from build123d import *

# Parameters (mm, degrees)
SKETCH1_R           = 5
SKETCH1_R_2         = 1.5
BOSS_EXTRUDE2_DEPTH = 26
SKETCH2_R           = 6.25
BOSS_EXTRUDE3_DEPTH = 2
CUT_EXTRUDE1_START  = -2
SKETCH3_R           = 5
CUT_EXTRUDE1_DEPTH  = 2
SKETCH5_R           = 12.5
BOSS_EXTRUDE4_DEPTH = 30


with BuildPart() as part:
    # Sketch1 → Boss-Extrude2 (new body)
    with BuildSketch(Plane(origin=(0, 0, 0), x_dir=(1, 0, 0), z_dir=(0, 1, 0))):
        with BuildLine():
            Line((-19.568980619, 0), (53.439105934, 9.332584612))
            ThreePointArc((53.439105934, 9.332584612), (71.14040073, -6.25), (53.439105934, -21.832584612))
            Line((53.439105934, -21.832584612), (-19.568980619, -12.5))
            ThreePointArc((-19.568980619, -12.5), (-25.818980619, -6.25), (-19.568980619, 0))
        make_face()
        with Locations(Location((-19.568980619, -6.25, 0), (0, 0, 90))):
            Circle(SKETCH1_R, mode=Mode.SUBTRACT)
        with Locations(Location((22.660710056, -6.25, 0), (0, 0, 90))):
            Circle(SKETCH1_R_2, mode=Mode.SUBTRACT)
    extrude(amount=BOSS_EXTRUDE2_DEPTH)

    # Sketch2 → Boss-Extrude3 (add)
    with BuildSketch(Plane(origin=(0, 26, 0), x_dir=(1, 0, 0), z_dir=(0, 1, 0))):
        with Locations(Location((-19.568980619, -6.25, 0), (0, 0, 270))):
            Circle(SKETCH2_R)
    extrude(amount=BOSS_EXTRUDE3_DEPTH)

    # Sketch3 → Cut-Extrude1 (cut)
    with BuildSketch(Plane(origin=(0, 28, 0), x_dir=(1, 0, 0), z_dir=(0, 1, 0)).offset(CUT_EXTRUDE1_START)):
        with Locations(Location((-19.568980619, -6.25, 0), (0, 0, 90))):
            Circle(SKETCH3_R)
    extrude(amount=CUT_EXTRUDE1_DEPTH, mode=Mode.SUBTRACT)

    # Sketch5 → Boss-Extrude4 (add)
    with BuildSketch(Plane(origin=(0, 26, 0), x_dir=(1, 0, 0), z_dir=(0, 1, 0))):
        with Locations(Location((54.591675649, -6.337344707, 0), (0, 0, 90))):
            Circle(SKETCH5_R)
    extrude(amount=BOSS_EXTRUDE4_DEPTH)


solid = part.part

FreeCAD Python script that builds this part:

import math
import FreeCAD as App
import Part
import Sketcher
from FreeCAD import Vector

doc = App.newDocument("Part")
params = doc.addObject("Spreadsheet::Sheet", "Params")
for row, (alias, value) in enumerate([
    ("sketch1_diameter", "3 mm"),
    ("sketch1_diameter2", "10 mm"),
    ("sketch1_radius", "6.25 mm"),
    ("pad1_length", "26 mm"),
    ("sketch2_diameter", "12.5 mm"),
    ("pad2_length", "2 mm"),
    ("sketch3_diameter", "10 mm"),
    ("pocket1_length", "2 mm"),
    ("sketch4_diameter", "25 mm"),
    ("pad3_length", "30 mm"),
], start=1):
    params.set(f"A{row}", alias)
    params.set(f"B{row}", "=" + value)
    params.setAlias(f"B{row}", alias)

body = doc.addObject("PartDesign::Body", "Body")

# Sketch on XZ plane
sketch1 = doc.addObject("Sketcher::SketchObject", "Sketch")
body.addObject(sketch1)
sketch1.AttachmentSupport = (doc.XZ_Plane, [""])
sketch1.MapMode = "FlatFace"
sketch1.addGeometry(Part.LineSegment(Vector(53.439106, -9.332585, 0), Vector(-19.568981, 0, 0)), False)
sketch1.addGeometry(Part.ArcOfCircle(Part.Circle(Vector(-19.568981, 6.25, 0), Vector(0, 0, 1), 6.25), math.radians(90), math.radians(270)), False)
sketch1.addGeometry(Part.LineSegment(Vector(-19.568981, 12.5, 0), Vector(53.439106, 21.832585, 0)), False)
sketch1.addGeometry(Part.ArcOfCircle(Part.Circle(Vector(55.431019, 6.25, 0), Vector(0, 0, 1), 15.709381), math.radians(-97.284583), math.radians(97.284583)), False)
sketch1.addGeometry(Part.Circle(Vector(22.66071, 6.25, 0), Vector(0, 0, 1), 1.5), False)
sketch1.addGeometry(Part.Circle(Vector(-19.568981, 6.25, 0), Vector(0, 0, 1), 5), False)
sketch1.addConstraint(Sketcher.Constraint("Coincident", 0, 2, 1, 2))
sketch1.addConstraint(Sketcher.Constraint("Coincident", 1, 1, 2, 1))
sketch1.addConstraint(Sketcher.Constraint("Tangent", 2, 2, 3, 2))
sketch1.addConstraint(Sketcher.Constraint("Tangent", 3, 1, 0, 1))
sketch1.addConstraint(Sketcher.Constraint("Coincident", 5, 3, 1, 3))
sketch1.addConstraint(Sketcher.Constraint("PointOnObject", 0, 2, -1))
sketch1.addConstraint(Sketcher.Constraint("Horizontal", 1, 3, 3, 3))
sketch1.addConstraint(Sketcher.Constraint("Horizontal", 3, 3, 4, 3))
sketch1.addConstraint(Sketcher.Constraint("Vertical", 5, 3, 0, 2))
sketch1.addConstraint(Sketcher.Constraint("Vertical", 0, 2, 1, 1))
sketch1.addConstraint(Sketcher.Constraint("Diameter", 4, 3.0))
sketch1.addConstraint(Sketcher.Constraint("Diameter", 5, 10.0))
sketch1.addConstraint(Sketcher.Constraint("Radius", 1, 6.25))
sketch1.addConstraint(Sketcher.Constraint("DistanceX", 1, 3, 3, 3, 75.0))
sketch1.addConstraint(Sketcher.Constraint("Radius", 3, 15.709381))
sketch1.addConstraint(Sketcher.Constraint("DistanceX", 1, 3, -1, 1, 19.568981))
sketch1.addConstraint(Sketcher.Constraint("DistanceX", -1, 1, 4, 3, 22.66071))
sketch1.setExpression("Constraints[10]", "Params.sketch1_diameter")
sketch1.setExpression("Constraints[11]", "Params.sketch1_diameter2")
sketch1.setExpression("Constraints[12]", "Params.sketch1_radius")
pad1 = doc.addObject("PartDesign::Pad", "Pad")
body.addObject(pad1)
pad1.Profile = sketch1
pad1.setExpression("Length", "Params.pad1_length")
pad1.Reversed = True

# Sketch on XZ plane
sketch2 = doc.addObject("Sketcher::SketchObject", "Sketch001")
body.addObject(sketch2)
sketch2.AttachmentSupport = (doc.XZ_Plane, [""])
sketch2.MapMode = "FlatFace"
sketch2.AttachmentOffset = App.Placement(Vector(0, 0, -26), App.Rotation())
sketch2.addGeometry(Part.Circle(Vector(-19.568981, 6.25, 0), Vector(0, 0, 1), 6.25), False)
sketch2.addConstraint(Sketcher.Constraint("Diameter", 0, 12.5))
sketch2.addConstraint(Sketcher.Constraint("DistanceY", -1, 1, 0, 3, 6.25))
sketch2.addConstraint(Sketcher.Constraint("DistanceX", 0, 3, -1, 1, 19.568981))
sketch2.setExpression("Constraints[0]", "Params.sketch2_diameter")
pad2 = doc.addObject("PartDesign::Pad", "Pad001")
body.addObject(pad2)
pad2.Profile = sketch2
pad2.setExpression("Length", "Params.pad2_length")
pad2.Reversed = True

# Sketch on XZ plane
sketch3 = doc.addObject("Sketcher::SketchObject", "Sketch002")
body.addObject(sketch3)
sketch3.AttachmentSupport = (doc.XZ_Plane, [""])
sketch3.MapMode = "FlatFace"
sketch3.AttachmentOffset = App.Placement(Vector(0, 0, -26), App.Rotation())
sketch3.addGeometry(Part.Circle(Vector(-19.568981, 6.25, 0), Vector(0, 0, 1), 5), False)
sketch3.addConstraint(Sketcher.Constraint("Diameter", 0, 10.0))
sketch3.addConstraint(Sketcher.Constraint("DistanceY", -1, 1, 0, 3, 6.25))
sketch3.addConstraint(Sketcher.Constraint("DistanceX", 0, 3, -1, 1, 19.568981))
sketch3.setExpression("Constraints[0]", "Params.sketch3_diameter")
pocket1 = doc.addObject("PartDesign::Pocket", "Pocket")
body.addObject(pocket1)
pocket1.Profile = sketch3
pocket1.setExpression("Length", "Params.pocket1_length")

# Sketch on XZ plane
sketch4 = doc.addObject("Sketcher::SketchObject", "Sketch003")
body.addObject(sketch4)
sketch4.AttachmentSupport = (doc.XZ_Plane, [""])
sketch4.MapMode = "FlatFace"
sketch4.AttachmentOffset = App.Placement(Vector(0, 0, -26), App.Rotation())
sketch4.addGeometry(Part.Circle(Vector(54.591676, 6.337345, 0), Vector(0, 0, 1), 12.5), False)
sketch4.addConstraint(Sketcher.Constraint("Diameter", 0, 25.0))
sketch4.addConstraint(Sketcher.Constraint("DistanceX", -1, 1, 0, 3, 54.591676))
sketch4.addConstraint(Sketcher.Constraint("DistanceY", -1, 1, 0, 3, 6.337345))
sketch4.setExpression("Constraints[0]", "Params.sketch4_diameter")
pad3 = doc.addObject("PartDesign::Pad", "Pad002")
body.addObject(pad3)
pad3.Profile = sketch4
pad3.setExpression("Length", "Params.pad3_length")
pad3.Reversed = True

doc.recompute()
